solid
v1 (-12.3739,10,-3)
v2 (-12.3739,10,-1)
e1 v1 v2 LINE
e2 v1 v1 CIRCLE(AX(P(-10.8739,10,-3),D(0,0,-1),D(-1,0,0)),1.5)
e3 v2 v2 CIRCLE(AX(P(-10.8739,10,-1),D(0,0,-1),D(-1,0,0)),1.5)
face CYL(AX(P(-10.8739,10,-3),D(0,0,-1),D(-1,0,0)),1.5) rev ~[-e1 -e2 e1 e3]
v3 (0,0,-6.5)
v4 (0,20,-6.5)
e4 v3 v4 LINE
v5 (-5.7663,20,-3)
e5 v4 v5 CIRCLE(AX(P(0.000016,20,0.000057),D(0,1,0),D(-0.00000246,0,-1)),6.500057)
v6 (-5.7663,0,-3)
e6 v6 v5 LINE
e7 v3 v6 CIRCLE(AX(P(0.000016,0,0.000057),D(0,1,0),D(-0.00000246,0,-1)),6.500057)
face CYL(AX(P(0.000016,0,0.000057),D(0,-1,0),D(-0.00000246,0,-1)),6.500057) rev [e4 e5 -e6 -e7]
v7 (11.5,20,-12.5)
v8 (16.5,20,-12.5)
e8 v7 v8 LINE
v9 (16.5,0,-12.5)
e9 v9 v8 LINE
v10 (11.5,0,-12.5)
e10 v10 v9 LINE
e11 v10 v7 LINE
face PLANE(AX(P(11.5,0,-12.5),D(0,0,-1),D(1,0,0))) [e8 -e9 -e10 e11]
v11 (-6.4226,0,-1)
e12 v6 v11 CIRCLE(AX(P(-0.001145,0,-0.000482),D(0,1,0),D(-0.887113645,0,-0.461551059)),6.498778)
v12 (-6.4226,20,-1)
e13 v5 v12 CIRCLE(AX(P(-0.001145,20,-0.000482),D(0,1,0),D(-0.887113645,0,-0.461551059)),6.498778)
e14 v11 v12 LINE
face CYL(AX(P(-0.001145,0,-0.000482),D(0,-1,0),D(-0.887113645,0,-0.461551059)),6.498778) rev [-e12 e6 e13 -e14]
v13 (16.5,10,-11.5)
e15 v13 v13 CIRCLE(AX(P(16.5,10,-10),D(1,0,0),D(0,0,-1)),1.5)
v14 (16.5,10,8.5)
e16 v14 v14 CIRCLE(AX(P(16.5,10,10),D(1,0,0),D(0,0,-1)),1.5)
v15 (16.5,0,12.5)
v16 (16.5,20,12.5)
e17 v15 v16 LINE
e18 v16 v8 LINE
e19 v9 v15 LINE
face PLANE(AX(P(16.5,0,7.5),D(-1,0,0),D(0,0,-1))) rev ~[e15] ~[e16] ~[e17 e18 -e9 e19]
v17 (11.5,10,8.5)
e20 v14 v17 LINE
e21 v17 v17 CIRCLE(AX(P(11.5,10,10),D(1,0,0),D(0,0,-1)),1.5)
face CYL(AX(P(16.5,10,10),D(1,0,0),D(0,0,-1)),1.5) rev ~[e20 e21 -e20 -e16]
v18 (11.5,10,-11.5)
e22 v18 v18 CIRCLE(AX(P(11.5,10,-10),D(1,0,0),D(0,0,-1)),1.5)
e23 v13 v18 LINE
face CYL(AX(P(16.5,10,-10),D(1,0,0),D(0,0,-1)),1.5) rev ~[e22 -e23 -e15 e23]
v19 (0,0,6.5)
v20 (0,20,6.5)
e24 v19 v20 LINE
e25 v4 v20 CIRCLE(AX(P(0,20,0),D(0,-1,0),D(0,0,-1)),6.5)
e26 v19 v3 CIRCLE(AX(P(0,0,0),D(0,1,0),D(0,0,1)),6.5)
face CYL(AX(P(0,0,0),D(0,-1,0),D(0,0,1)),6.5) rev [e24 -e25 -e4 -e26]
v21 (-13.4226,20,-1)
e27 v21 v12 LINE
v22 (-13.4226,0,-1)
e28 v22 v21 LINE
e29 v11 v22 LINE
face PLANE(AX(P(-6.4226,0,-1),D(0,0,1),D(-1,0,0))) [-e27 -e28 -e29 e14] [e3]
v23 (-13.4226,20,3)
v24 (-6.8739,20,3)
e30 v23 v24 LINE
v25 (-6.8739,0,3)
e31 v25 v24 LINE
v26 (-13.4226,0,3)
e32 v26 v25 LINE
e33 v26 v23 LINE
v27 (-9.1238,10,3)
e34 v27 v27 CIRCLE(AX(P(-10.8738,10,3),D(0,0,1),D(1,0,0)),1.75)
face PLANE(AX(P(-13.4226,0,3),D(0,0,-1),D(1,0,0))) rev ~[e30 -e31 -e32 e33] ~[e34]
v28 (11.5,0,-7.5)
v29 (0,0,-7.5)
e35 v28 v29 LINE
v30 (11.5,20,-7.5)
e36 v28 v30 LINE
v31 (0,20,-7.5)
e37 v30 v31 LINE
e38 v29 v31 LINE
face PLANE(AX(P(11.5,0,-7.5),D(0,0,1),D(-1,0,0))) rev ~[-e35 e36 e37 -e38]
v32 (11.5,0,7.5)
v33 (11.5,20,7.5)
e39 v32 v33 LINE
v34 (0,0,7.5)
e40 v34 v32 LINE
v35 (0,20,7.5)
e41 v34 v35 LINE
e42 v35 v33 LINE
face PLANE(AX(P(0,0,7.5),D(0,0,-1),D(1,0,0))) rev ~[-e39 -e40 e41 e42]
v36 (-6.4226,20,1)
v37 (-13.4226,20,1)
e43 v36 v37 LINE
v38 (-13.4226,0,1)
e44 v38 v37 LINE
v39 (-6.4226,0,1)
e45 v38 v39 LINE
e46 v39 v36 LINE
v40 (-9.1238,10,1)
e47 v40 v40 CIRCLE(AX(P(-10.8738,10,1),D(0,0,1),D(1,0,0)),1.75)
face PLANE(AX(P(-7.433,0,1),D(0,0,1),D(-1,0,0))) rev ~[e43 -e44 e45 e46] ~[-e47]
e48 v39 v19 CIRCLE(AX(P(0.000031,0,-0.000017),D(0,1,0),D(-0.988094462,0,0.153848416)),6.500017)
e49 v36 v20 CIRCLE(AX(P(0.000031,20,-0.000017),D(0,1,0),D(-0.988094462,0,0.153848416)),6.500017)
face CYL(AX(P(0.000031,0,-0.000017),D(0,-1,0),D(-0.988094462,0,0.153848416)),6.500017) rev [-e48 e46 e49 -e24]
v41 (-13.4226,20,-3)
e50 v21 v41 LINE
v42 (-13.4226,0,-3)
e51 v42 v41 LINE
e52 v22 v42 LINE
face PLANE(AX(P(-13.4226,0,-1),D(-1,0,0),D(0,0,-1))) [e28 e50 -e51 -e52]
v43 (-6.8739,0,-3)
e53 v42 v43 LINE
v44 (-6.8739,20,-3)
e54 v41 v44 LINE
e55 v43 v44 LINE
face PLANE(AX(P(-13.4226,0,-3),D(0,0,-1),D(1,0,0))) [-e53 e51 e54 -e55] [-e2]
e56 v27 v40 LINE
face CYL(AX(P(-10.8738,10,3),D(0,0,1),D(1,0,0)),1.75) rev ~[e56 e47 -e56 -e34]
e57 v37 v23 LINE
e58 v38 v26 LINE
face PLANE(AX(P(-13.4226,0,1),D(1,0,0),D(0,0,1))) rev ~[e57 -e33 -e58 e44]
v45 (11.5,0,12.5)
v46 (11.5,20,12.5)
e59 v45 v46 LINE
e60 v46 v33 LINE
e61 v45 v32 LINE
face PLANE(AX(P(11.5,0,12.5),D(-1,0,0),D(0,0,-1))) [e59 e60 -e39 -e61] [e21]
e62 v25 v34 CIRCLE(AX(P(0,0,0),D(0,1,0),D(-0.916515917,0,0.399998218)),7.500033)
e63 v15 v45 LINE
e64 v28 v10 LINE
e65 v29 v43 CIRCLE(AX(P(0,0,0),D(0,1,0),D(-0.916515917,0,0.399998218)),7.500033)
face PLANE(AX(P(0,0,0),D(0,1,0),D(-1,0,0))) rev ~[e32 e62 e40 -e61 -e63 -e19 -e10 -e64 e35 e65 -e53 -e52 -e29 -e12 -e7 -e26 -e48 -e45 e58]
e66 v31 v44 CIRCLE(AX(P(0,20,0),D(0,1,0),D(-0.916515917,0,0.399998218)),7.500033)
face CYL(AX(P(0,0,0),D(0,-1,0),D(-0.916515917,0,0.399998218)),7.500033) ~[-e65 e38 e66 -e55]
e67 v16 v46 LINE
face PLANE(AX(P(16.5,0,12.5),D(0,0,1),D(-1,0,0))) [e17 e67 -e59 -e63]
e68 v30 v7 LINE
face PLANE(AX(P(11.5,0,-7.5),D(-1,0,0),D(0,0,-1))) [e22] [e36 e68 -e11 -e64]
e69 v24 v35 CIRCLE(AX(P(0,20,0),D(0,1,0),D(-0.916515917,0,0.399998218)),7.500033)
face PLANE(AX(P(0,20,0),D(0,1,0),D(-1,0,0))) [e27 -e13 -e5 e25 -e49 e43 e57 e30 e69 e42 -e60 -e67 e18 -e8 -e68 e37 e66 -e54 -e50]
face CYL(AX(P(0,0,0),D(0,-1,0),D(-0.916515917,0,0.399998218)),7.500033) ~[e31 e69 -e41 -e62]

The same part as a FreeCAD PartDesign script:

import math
import FreeCAD as App
import Part
import Sketcher

doc = App.newDocument("Part")
body = doc.addObject("PartDesign::Body", "Body")

sketch1 = body.newObject("Sketcher::SketchObject", "Sketch")
sketch1.AttachmentSupport = (doc.getObject("XZ_Plane"), [""])
sketch1.MapMode = "FlatFace"
sketch1.addGeometry(Part.ArcOfCircle(Part.Circle(App.Vector(0, 0, 0), App.Vector(0, 0, 1), 7.5), math.radians(90), math.radians(156)), False)
sketch1.addGeometry(Part.LineSegment(App.Vector(0, 7.5, 0), App.Vector(11.5, 7.5, 0)), False)
sketch1.addGeometry(Part.LineSegment(App.Vector(11.5, 7.5, 0), App.Vector(11.5, 12.5, 0)), False)
sketch1.addGeometry(Part.LineSegment(App.Vector(11.5, 12.5, 0), App.Vector(16.5, 12.5, 0)), False)
sketch1.addGeometry(Part.LineSegment(App.Vector(16.5, 12.5, 0), App.Vector(16.5, -12.5, 0)), False)
sketch1.addGeometry(Part.LineSegment(App.Vector(16.5, -12.5, 0), App.Vector(11.5, -12.5, 0)), False)
sketch1.addGeometry(Part.LineSegment(App.Vector(11.5, -12.5, 0), App.Vector(11.5, -7.5, 0)), False)
sketch1.addGeometry(Part.LineSegment(App.Vector(11.5, -7.5, 0), App.Vector(0, -7.5, 0)), False)
sketch1.addGeometry(Part.ArcOfCircle(Part.Circle(App.Vector(0, 0, 0), App.Vector(0, 0, 1), 7.5), math.radians(-156), math.radians(-90)), False)
sketch1.addGeometry(Part.LineSegment(App.Vector(-6.9, -3, 0), App.Vector(-13.4, -3, 0)), False)
sketch1.addGeometry(Part.LineSegment(App.Vector(-13.4, -3, 0), App.Vector(-13.4, -1, 0)), False)
sketch1.addGeometry(Part.LineSegment(App.Vector(-13.4, -1, 0), App.Vector(-6.4, -1, 0)), False)
sketch1.addGeometry(Part.ArcOfCircle(Part.Circle(App.Vector(0, 0, 0), App.Vector(0, 0, 1), 6.5), math.radians(-171.15), math.radians(-152.51)), False)
sketch1.addGeometry(Part.ArcOfCircle(Part.Circle(App.Vector(0, 0, 0), App.Vector(0, 0, 1), 6.5), math.radians(-153), math.radians(-90)), False)
sketch1.addGeometry(Part.ArcOfCircle(Part.Circle(App.Vector(0, 0, 0), App.Vector(0, 0, 1), 6.5), math.radians(-90), math.radians(90)), False)
sketch1.addGeometry(Part.ArcOfCircle(Part.Circle(App.Vector(0, 0, 0), App.Vector(0, 0, 1), 6.5), math.radians(90), math.radians(171)), False)
sketch1.addGeometry(Part.LineSegment(App.Vector(-6.4, 1, 0), App.Vector(-13.4, 1, 0)), False)
sketch1.addGeometry(Part.LineSegment(App.Vector(-13.4, 1, 0), App.Vector(-13.4, 3, 0)), False)
sketch1.addGeometry(Part.LineSegment(App.Vector(-13.4, 3, 0), App.Vector(-6.9, 3, 0)), False)
sketch1.addConstraint(Sketcher.Constraint("Tangent", 0, 1, 1, 1))
sketch1.addConstraint(Sketcher.Constraint("Coincident", 1, 2, 2, 1))
sketch1.addConstraint(Sketcher.Constraint("Coincident", 2, 2, 3, 1))
sketch1.addConstraint(Sketcher.Constraint("Coincident", 3, 2, 4, 1))
sketch1.addConstraint(Sketcher.Constraint("Coincident", 4, 2, 5, 1))
sketch1.addConstraint(Sketcher.Constraint("Coincident", 5, 2, 6, 1))
sketch1.addConstraint(Sketcher.Constraint("Coincident", 6, 2, 7, 1))
sketch1.addConstraint(Sketcher.Constraint("Tangent", 7, 2, 8, 2))
sketch1.addConstraint(Sketcher.Constraint("Coincident", 8, 1, 9, 1))
sketch1.addConstraint(Sketcher.Constraint("Coincident", 9, 2, 10, 1))
sketch1.addConstraint(Sketcher.Constraint("Coincident", 10, 2, 11, 1))
sketch1.addConstraint(Sketcher.Constraint("Coincident", 11, 2, 12, 1))
sketch1.addConstraint(Sketcher.Constraint("Tangent", 12, 2, 13, 1))
sketch1.addConstraint(Sketcher.Constraint("Tangent", 13, 2, 14, 1))
sketch1.addConstraint(Sketcher.Constraint("Tangent", 14, 2, 15, 1))
sketch1.addConstraint(Sketcher.Constraint("Coincident", 15, 2, 16, 1))
sketch1.addConstraint(Sketcher.Constraint("Coincident", 16, 2, 17, 1))
sketch1.addConstraint(Sketcher.Constraint("Coincident", 17, 2, 18, 1))
sketch1.addConstraint(Sketcher.Constraint("Coincident", 18, 2, 0, 2))
sketch1.addConstraint(Sketcher.Constraint("Horizontal", 1))
sketch1.addConstraint(Sketcher.Constraint("Vertical", 2))
sketch1.addConstraint(Sketcher.Constraint("Horizontal", 3))
sketch1.addConstraint(Sketcher.Constraint("Vertical", 4))
sketch1.addConstraint(Sketcher.Constraint("Horizontal", 5))
sketch1.addConstraint(Sketcher.Constraint("Vertical", 6))
sketch1.addConstraint(Sketcher.Constraint("Horizontal", 7))
sketch1.addConstraint(Sketcher.Constraint("Horizontal", 9))
sketch1.addConstraint(Sketcher.Constraint("Vertical", 10))
sketch1.addConstraint(Sketcher.Constraint("Horizontal", 11))
sketch1.addConstraint(Sketcher.Constraint("Horizontal", 16))
sketch1.addConstraint(Sketcher.Constraint("Vertical", 17))
sketch1.addConstraint(Sketcher.Constraint("Horizontal", 18))
sketch1.addConstraint(Sketcher.Constraint("Coincident", 0, 3, -1, 1))
sketch1.addConstraint(Sketcher.Constraint("Coincident", 8, 3, -1, 1))
sketch1.addConstraint(Sketcher.Constraint("Coincident", 13, 3, -1, 1))
sketch1.addConstraint(Sketcher.Constraint("Equal", 0, 8))
sketch1.addConstraint(Sketcher.Constraint("Equal", 13, 14))
sketch1.addConstraint(Sketcher.Constraint("Equal", 14, 15))
sketch1.addConstraint(Sketcher.Constraint("Symmetric", 2, 2, 5, 2, -1))
sketch1.addConstraint(Sketcher.Constraint("Symmetric", 11, 2, 15, 2, -1))
sketch1.addConstraint(Sketcher.Constraint("Symmetric", 9, 2, 17, 2, -1))
sketch1.addConstraint(Sketcher.Constraint("PointOnObject", 13, 2, -2))
sketch1.addConstraint(Sketcher.Constraint("PointOnObject", 14, 2, -2))
sketch1.addConstraint(Sketcher.Constraint("Horizontal", 9, 2, 12, 2))
sketch1.addConstraint(Sketcher.Constraint("Equal", 5, 2))
sketch1.addConstraint(Sketcher.Constraint("Radius", 0, 7.5))
sketch1.addConstraint(Sketcher.Constraint("Radius", 13, 6.5))
sketch1.addConstraint(Sketcher.Constraint("DistanceX", 3, 1, 3, 2, 5.0))
sketch1.addConstraint(Sketcher.Constraint("DistanceX", 11, 1, 11, 2, 7.0))
sketch1.addConstraint(Sketcher.Constraint("DistanceY", 10, 1, 10, 2, 2.0))
sketch1.addConstraint(Sketcher.Constraint("DistanceY", 10, 2, -1, 1, 1.0))
sketch1.addConstraint(Sketcher.Constraint("DistanceX", -1, 1, 3, 2, 16.5))
pad1 = body.newObject("PartDesign::Pad", "Pad")
pad1.Profile = sketch1
pad1.Length = 20
pad1.Reversed = True

sketch2 = body.newObject("Sketcher::SketchObject", "Sketch001")
sketch2.AttachmentSupport = (doc.getObject("YZ_Plane"), [""])
sketch2.MapMode = "FlatFace"
sketch2.AttachmentOffset = App.Placement(App.Vector(0, 0, 16.5), App.Rotation())
sketch2.addGeometry(Part.Circle(App.Vector(10, -10, 0), App.Vector(0, 0, 1), 1.5), False)
sketch2.addGeometry(Part.Circle(App.Vector(10, 10, 0), App.Vector(0, 0, 1), 1.5), False)
sketch2.addConstraint(Sketcher.Constraint("Equal", 0, 1))
sketch2.addConstraint(Sketcher.Constraint("Symmetric", 0, 3, 1, 3, -1))
sketch2.addConstraint(Sketcher.Constraint("Diameter", 0, 3.0))
sketch2.addConstraint(Sketcher.Constraint("DistanceX", -1, 1, 0, 3, 10.0))
sketch2.addConstraint(Sketcher.Constraint("DistanceY", 0, 3, -1, 1, 10.0))
pocket1 = body.newObject("PartDesign::Pocket", "Pocket")
pocket1.Profile = sketch2
pocket1.Length = 5

sketch3 = body.newObject("Sketcher::SketchObject", "Sketch002")
sketch3.AttachmentSupport = (doc.getObject("XY_Plane"), [""])
sketch3.MapMode = "FlatFace"
sketch3.AttachmentOffset = App.Placement(App.Vector(0, 0, 3), App.Rotation())
sketch3.addGeometry(Part.Circle(App.Vector(-10.9, 10, 0), App.Vector(0, 0, 1), 1.8), False)
sketch3.addConstraint(Sketcher.Constraint("Diameter", 0, 3.5))
sketch3.addConstraint(Sketcher.Constraint("DistanceY", -1, 1, 0, 3, 10.0))
sketch3.addConstraint(Sketcher.Constraint("DistanceX", 0, 3, -1, 1, 10.8738))
pocket2 = body.newObject("PartDesign::Pocket", "Pocket001")
pocket2.Profile = sketch3
pocket2.Type = "UpToFirst"

sketch4 = body.newObject("Sketcher::SketchObject", "Sketch003")
sketch4.AttachmentSupport = (doc.getObject("XY_Plane"), [""])
sketch4.MapMode = "FlatFace"
sketch4.AttachmentOffset = App.Placement(App.Vector(0, 0, -3), App.Rotation())
sketch4.addGeometry(Part.Circle(App.Vector(-10.9, 10, 0), App.Vector(0, 0, 1), 1.5), False)
sketch4.addConstraint(Sketcher.Constraint("Diameter", 0, 3.0))
sketch4.addConstraint(Sketcher.Constraint("DistanceY", -1, 1, 0, 3, 10.0))
sketch4.addConstraint(Sketcher.Constraint("DistanceX", 0, 3, -1, 1, 10.874))
pocket3 = body.newObject("PartDesign::Pocket", "Pocket002")
pocket3.Profile = sketch4
pocket3.Type = "UpToFirst"
pocket3.Reversed = True

doc.recompute()
